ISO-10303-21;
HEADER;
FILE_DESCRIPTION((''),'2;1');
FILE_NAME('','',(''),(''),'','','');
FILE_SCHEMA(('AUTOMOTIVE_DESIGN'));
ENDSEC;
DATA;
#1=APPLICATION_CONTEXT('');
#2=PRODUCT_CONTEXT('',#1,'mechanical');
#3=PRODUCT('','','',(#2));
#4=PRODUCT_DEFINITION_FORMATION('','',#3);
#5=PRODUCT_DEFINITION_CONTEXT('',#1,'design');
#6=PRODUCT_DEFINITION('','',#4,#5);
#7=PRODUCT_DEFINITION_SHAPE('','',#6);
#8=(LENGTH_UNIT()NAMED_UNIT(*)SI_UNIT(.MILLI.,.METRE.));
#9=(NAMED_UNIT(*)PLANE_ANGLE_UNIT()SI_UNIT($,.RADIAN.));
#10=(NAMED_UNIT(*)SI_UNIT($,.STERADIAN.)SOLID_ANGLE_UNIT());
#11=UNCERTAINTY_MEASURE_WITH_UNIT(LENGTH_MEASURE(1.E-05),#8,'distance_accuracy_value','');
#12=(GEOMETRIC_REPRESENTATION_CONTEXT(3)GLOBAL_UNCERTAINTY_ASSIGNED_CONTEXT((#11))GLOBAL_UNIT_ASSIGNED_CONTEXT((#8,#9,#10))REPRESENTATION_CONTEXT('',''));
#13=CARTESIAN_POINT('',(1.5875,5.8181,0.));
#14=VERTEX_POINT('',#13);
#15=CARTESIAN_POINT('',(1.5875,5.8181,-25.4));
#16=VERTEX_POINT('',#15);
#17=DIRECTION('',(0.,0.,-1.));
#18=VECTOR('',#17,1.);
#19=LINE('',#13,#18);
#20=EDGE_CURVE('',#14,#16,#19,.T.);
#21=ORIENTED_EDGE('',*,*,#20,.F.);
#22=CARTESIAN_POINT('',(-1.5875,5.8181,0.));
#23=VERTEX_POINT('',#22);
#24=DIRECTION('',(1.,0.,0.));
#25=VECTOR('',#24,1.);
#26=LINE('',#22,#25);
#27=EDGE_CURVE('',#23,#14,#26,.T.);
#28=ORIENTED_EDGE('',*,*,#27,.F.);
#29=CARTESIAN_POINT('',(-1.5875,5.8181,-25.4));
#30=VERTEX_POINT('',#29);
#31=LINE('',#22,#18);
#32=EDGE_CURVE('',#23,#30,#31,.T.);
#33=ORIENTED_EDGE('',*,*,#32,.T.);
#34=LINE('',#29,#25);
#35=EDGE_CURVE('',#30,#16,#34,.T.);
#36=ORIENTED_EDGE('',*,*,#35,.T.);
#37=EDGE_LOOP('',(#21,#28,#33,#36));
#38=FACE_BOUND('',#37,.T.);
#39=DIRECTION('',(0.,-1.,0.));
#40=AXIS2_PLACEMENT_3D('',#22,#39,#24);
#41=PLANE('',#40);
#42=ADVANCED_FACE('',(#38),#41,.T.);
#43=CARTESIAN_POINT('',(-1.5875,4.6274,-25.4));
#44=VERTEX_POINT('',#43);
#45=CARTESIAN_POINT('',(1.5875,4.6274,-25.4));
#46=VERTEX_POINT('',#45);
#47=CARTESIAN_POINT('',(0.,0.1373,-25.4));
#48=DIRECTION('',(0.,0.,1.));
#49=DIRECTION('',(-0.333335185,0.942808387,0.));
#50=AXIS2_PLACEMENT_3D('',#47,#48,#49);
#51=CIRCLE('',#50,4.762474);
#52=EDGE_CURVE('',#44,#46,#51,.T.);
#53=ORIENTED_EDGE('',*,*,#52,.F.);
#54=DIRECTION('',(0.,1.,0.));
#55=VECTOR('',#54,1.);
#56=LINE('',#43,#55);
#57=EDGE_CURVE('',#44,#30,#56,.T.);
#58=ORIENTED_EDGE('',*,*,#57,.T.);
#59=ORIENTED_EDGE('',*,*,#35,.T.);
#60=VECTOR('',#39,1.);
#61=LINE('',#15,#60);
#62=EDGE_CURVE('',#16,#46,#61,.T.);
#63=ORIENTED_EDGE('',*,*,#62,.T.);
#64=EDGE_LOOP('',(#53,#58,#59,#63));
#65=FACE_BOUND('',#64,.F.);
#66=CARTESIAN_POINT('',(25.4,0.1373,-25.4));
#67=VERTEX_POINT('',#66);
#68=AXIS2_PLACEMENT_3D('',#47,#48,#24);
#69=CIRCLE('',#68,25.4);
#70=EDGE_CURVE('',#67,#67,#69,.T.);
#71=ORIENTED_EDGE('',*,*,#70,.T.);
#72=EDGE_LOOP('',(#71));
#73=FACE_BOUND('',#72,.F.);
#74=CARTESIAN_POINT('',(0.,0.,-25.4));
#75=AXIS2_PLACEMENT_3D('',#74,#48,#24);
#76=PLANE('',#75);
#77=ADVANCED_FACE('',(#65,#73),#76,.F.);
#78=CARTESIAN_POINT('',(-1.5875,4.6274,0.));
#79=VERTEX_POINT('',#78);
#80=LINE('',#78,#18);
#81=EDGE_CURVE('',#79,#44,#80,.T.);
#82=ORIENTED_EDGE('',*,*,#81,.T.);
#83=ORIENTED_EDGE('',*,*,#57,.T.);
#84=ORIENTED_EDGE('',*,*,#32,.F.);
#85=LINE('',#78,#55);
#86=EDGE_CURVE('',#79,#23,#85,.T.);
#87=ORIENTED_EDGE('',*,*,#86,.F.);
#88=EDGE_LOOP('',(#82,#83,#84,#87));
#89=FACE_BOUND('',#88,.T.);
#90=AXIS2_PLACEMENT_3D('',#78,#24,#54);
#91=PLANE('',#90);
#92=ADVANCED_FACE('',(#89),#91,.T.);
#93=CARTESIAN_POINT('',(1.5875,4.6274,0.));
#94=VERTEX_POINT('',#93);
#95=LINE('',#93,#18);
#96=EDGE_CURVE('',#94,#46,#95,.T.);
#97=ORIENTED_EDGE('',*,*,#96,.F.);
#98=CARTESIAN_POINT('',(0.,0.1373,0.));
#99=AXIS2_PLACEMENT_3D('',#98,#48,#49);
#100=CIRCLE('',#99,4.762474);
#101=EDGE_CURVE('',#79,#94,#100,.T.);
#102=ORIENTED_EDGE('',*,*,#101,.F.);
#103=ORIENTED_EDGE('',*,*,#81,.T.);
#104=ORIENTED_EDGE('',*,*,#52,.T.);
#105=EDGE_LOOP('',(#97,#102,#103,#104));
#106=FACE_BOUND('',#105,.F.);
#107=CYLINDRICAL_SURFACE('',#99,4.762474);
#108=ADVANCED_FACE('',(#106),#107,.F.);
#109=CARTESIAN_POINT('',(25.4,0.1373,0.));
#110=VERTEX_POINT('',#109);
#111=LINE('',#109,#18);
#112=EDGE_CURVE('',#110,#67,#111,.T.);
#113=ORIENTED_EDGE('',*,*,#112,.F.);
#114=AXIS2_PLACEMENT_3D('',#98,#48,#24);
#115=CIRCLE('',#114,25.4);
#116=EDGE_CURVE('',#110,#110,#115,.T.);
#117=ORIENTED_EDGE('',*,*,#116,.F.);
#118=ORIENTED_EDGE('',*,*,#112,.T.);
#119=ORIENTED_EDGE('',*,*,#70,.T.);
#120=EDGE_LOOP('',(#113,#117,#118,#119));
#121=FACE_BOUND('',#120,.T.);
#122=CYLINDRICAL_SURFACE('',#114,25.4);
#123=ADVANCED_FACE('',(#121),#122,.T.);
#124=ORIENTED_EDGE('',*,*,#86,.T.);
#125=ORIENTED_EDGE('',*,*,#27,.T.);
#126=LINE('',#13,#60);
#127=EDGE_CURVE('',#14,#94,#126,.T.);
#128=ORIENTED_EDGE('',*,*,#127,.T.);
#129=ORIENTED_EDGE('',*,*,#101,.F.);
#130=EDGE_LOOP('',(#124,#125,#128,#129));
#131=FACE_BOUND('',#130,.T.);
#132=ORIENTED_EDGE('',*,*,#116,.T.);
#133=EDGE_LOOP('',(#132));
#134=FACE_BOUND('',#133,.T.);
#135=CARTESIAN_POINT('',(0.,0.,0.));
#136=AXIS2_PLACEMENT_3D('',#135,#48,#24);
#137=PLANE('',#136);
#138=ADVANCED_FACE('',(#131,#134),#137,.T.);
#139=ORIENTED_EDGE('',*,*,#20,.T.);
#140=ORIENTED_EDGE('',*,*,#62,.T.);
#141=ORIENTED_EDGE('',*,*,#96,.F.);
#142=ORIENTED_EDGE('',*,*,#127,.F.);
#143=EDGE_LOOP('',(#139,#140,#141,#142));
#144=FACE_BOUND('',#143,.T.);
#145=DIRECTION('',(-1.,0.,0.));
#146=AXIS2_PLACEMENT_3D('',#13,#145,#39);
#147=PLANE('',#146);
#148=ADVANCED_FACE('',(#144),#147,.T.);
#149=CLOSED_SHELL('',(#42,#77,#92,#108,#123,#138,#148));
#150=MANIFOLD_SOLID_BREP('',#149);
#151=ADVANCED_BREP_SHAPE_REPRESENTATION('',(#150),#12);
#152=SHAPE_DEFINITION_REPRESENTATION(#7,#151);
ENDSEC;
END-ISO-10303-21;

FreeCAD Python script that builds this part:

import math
import FreeCAD as App
import Part
import Sketcher
Q = App.Units.Quantity

doc = App.newDocument("Part")
body = doc.addObject("PartDesign::Body", "Body")

# Sketch on XY plane
sketch1 = doc.addObject("Sketcher::SketchObject", "Sketch")
body.addObject(sketch1)
sketch1.AttachmentSupport = (doc.XY_Plane, [""])
sketch1.MapMode = "FlatFace"
sketch1.addGeometry(Part.Circle(App.Vector(0, 0.1, 0), App.Vector(0, 0, 1), 25.4), False)
sketch1.addGeometry(Part.ArcOfCircle(Part.Circle(App.Vector(0, 0.1, 0), App.Vector(0, 0, 1), 4.8), math.radians(109), math.radians(431)), False)
sketch1.addGeometry(Part.LineSegment(App.Vector(-1.6, 4.6, 0), App.Vector(-1.6, 5.8, 0)), False)
sketch1.addGeometry(Part.LineSegment(App.Vector(-1.6, 5.8, 0), App.Vector(1.6, 5.8, 0)), False)
sketch1.addGeometry(Part.LineSegment(App.Vector(1.6, 5.8, 0), App.Vector(1.6, 4.6, 0)), False)
sketch1.addConstraint(Sketcher.Constraint("Coincident", 1, 1, 2, 1))
sketch1.addConstraint(Sketcher.Constraint("Coincident", 2, 2, 3, 1))
sketch1.addConstraint(Sketcher.Constraint("Coincident", 3, 2, 4, 1))
sketch1.addConstraint(Sketcher.Constraint("Coincident", 4, 2, 1, 2))
sketch1.addConstraint(Sketcher.Constraint("Vertical", 2))
sketch1.addConstraint(Sketcher.Constraint("Horizontal", 3))
sketch1.addConstraint(Sketcher.Constraint("Vertical", 4))
sketch1.addConstraint(Sketcher.Constraint("Coincident", 1, 3, 0, 3))
sketch1.addConstraint(Sketcher.Constraint("Symmetric", 1, 1, 4, 2, -2))
sketch1.addConstraint(Sketcher.Constraint("Diameter", 0, Q("2 in")))
sketch1.addConstraint(Sketcher.Constraint("Radius", 1, Q("0.1875 in")))
sketch1.addConstraint(Sketcher.Constraint("DistanceX", 3, 1, 3, 2, Q("0.125 in")))
sketch1.addConstraint(Sketcher.Constraint("DistanceY", 2, 1, 2, 2, Q("0.046878 in")))
sketch1.addConstraint(Sketcher.Constraint("DistanceY", -1, 1, 0, 3, Q("0.0054 in")))
pad1 = doc.addObject("PartDesign::Pad", "Pad")
body.addObject(pad1)
pad1.Profile = sketch1
pad1.Length = Q("1 in")
pad1.Reversed = True

doc.recompute()
